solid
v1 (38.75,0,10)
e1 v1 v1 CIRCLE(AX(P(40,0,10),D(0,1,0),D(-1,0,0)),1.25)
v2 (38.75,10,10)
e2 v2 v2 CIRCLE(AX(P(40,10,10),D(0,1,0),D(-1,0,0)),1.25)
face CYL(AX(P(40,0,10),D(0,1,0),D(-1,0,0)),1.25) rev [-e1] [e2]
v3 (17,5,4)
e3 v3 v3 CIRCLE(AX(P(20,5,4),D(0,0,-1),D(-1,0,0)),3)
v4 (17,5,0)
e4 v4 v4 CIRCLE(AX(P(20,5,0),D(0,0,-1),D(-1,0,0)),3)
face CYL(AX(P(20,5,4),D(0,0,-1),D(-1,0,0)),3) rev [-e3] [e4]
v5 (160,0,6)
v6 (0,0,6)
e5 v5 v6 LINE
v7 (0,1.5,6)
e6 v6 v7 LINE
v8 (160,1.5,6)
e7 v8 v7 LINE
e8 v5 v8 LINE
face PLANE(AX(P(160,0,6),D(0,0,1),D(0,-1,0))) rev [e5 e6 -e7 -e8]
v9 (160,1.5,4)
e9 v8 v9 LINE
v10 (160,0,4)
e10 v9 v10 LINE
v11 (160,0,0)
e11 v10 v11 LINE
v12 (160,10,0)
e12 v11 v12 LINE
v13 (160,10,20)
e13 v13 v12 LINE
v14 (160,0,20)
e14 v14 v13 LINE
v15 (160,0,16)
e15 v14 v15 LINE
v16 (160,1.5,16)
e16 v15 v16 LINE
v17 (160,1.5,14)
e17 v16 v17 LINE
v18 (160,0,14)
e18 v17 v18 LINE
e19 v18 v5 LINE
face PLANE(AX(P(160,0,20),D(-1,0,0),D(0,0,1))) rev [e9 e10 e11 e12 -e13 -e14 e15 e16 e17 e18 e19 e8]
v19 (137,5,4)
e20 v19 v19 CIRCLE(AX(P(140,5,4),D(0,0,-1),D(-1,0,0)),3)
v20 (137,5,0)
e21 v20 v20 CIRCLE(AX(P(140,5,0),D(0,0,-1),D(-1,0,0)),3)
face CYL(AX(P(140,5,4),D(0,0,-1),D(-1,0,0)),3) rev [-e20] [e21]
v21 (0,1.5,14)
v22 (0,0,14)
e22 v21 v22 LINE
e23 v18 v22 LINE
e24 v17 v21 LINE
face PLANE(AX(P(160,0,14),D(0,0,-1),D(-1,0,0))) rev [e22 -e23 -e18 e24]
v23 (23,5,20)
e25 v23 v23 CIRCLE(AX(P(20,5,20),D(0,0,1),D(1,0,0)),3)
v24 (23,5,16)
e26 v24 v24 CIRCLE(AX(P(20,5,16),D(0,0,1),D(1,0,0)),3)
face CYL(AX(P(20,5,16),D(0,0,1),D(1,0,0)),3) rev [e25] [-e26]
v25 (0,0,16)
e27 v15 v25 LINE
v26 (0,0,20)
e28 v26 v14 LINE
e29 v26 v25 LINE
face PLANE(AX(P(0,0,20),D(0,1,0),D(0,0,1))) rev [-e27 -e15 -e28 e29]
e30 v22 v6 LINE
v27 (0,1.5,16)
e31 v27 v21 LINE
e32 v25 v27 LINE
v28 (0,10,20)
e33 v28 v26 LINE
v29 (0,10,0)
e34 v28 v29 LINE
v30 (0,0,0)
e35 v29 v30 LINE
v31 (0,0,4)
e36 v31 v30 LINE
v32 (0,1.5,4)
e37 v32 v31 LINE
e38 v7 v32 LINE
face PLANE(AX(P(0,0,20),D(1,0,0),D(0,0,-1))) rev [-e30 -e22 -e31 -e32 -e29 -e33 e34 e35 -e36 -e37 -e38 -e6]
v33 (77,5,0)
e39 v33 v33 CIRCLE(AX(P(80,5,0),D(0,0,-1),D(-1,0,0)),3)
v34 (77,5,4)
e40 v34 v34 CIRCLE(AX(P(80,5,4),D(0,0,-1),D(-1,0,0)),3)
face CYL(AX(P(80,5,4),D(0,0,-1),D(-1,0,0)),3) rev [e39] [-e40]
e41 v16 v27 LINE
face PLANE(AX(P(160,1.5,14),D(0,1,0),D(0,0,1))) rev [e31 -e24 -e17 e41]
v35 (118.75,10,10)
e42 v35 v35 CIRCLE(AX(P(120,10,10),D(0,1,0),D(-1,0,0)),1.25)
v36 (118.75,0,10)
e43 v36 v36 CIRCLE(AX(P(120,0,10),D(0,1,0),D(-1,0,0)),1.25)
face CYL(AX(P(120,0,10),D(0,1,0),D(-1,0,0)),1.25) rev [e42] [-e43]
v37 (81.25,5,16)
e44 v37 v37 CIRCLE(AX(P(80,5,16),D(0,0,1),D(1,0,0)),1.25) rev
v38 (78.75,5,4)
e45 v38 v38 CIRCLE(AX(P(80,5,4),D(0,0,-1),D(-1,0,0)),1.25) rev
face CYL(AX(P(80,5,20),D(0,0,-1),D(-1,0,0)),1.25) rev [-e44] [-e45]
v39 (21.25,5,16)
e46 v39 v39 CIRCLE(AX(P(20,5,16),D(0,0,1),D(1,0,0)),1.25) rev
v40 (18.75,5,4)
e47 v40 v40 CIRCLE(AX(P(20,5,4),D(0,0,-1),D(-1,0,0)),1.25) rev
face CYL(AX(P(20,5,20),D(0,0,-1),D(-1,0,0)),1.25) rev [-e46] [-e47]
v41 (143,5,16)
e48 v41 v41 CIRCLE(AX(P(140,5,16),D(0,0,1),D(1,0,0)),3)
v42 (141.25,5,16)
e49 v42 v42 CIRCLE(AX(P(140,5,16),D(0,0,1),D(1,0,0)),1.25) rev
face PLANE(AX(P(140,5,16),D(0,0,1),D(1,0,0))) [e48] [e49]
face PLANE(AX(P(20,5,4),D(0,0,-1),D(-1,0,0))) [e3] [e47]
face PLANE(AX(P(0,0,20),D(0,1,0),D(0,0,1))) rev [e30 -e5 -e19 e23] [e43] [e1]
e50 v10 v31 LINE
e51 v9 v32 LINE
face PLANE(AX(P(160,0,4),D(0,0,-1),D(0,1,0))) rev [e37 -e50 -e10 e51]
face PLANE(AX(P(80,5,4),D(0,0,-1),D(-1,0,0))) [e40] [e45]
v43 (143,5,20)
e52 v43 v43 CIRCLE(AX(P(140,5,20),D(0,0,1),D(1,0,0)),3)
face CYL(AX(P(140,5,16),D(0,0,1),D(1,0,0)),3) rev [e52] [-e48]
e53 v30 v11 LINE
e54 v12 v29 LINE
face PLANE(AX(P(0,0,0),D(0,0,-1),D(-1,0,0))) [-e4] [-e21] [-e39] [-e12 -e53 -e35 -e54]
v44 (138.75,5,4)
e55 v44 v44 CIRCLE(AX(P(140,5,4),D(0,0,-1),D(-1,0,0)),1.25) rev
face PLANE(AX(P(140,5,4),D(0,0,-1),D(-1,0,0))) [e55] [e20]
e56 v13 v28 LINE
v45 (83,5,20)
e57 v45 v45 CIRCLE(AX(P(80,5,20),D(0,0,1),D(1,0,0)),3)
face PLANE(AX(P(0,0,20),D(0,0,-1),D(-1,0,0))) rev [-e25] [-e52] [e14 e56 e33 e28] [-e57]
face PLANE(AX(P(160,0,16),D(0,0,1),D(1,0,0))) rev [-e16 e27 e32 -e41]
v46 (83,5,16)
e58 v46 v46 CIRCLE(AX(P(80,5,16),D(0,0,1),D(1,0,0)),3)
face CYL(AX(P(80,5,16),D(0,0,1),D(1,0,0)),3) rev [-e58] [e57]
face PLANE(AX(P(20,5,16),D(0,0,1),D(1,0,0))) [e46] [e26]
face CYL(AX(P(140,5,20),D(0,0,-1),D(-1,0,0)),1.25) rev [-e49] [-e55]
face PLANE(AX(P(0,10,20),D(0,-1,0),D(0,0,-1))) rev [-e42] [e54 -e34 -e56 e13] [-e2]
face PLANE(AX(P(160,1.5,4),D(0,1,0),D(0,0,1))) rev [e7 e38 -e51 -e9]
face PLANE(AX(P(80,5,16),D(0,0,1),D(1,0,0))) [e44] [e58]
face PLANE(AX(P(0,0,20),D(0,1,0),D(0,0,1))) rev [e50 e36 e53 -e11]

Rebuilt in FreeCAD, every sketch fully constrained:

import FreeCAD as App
import Part
import Sketcher
from FreeCAD import Vector

doc = App.newDocument("Part")
params = doc.addObject("Spreadsheet::Sheet", "Params")
for row, (alias, value) in enumerate([
    ("sketch1_width", "160 mm"),
    ("sketch1_height", "10 mm"),
    ("pad1_length", "20 mm"),
    ("sketch2_height", "2 mm"),
    ("sketch2_width", "1.5 mm"),
    ("sketch3_diameter", "2.5 mm"),
    ("sketch4_diameter", "2.5 mm"),
    ("sketch5_diameter", "6 mm"),
    ("pocket4_length", "4 mm"),
    ("sketch6_diameter", "6 mm"),
    ("pocket5_length", "4 mm"),
], start=1):
    params.set(f"A{row}", alias)
    params.set(f"B{row}", "=" + value)
    params.setAlias(f"B{row}", alias)

body = doc.addObject("PartDesign::Body", "Body")

# Sketch on XY plane
sketch1 = body.newObject("Sketcher::SketchObject", "Sketch")
sketch1.AttachmentSupport = (doc.getObject("XY_Plane"), [""])
sketch1.MapMode = "FlatFace"
sketch1.addGeometry([
    Part.LineSegment(Vector(0, 10, 0), Vector(0, 0, 0)),
    Part.LineSegment(Vector(0, 0, 0), Vector(160, 0, 0)),
    Part.LineSegment(Vector(160, 0, 0), Vector(160, 10, 0)),
    Part.LineSegment(Vector(160, 10, 0), Vector(0, 10, 0)),
], False)
sketch1.addConstraint([
    Sketcher.Constraint("Coincident", 0, 2, 1, 1),
    Sketcher.Constraint("Coincident", 1, 2, 2, 1),
    Sketcher.Constraint("Coincident", 2, 2, 3, 1),
    Sketcher.Constraint("Coincident", 3, 2, 0, 1),
    Sketcher.Constraint("Vertical", 0),
    Sketcher.Constraint("Horizontal", 1),
    Sketcher.Constraint("Vertical", 2),
    Sketcher.Constraint("Horizontal", 3),
    Sketcher.Constraint("Coincident", 0, 2, -1, 1),
    Sketcher.Constraint("DistanceX", 1, 1, 1, 2, 160.0),
    Sketcher.Constraint("DistanceY", 0, 2, 0, 1, 10.0),
])
sketch1.setExpression("Constraints[9]", "Params.sketch1_width")
sketch1.setExpression("Constraints[10]", "Params.sketch1_height")
pad1 = body.newObject("PartDesign::Pad", "Pad")
pad1.Profile = sketch1
pad1.setExpression("Length", "Params.pad1_length")

# Sketch on YZ plane
sketch2 = body.newObject("Sketcher::SketchObject", "Sketch001")
sketch2.AttachmentSupport = (doc.getObject("YZ_Plane"), [""])
sketch2.MapMode = "FlatFace"
sketch2.addGeometry([
    Part.LineSegment(Vector(1.5, 4, 0), Vector(0, 4, 0)),  # 0
    Part.LineSegment(Vector(0, 4, 0), Vector(0, 6, 0)),  # 1
    Part.LineSegment(Vector(0, 6, 0), Vector(1.5, 6, 0)),  # 2
    Part.LineSegment(Vector(1.5, 6, 0), Vector(1.5, 4, 0)),  # 3
    Part.LineSegment(Vector(1.5, 14, 0), Vector(0, 14, 0)),  # 4
    Part.LineSegment(Vector(0, 14, 0), Vector(0, 16, 0)),  # 5
    Part.LineSegment(Vector(0, 16, 0), Vector(1.5, 16, 0)),  # 6
    Part.LineSegment(Vector(1.5, 16, 0), Vector(1.5, 14, 0)),  # 7
], False)
sketch2.addConstraint([
    Sketcher.Constraint("Coincident", 0, 2, 1, 1),
    Sketcher.Constraint("Coincident", 1, 2, 2, 1),
    Sketcher.Constraint("Coincident", 2, 2, 3, 1),
    Sketcher.Constraint("Coincident", 3, 2, 0, 1),
    Sketcher.Constraint("Coincident", 4, 2, 5, 1),
    Sketcher.Constraint("Coincident", 5, 2, 6, 1),
    Sketcher.Constraint("Coincident", 6, 2, 7, 1),
    Sketcher.Constraint("Coincident", 7, 2, 4, 1),
    Sketcher.Constraint("Horizontal", 0),
    Sketcher.Constraint("Vertical", 1),
    Sketcher.Constraint("Horizontal", 2),
    Sketcher.Constraint("Vertical", 3),
    Sketcher.Constraint("Horizontal", 4),
    Sketcher.Constraint("Vertical", 5),
    Sketcher.Constraint("Horizontal", 6),
    Sketcher.Constraint("Vertical", 7),
    Sketcher.Constraint("PointOnObject", 0, 2, -2),
    Sketcher.Constraint("PointOnObject", 4, 2, -2),
    Sketcher.Constraint("Vertical", 3, 2, 6, 2),
    Sketcher.Constraint("Equal", 3, 5),
    Sketcher.Constraint("DistanceY", 1, 1, 1, 2, 2.0),
    Sketcher.Constraint("DistanceX", 0, 2, 0, 1, 1.5),
    Sketcher.Constraint("DistanceY", -1, 1, 0, 2, 4.0),
    Sketcher.Constraint("DistanceY", -1, 1, 4, 2, 14.0),
])
sketch2.setExpression("Constraints[20]", "Params.sketch2_height")
sketch2.setExpression("Constraints[21]", "Params.sketch2_width")
pocket1 = body.newObject("PartDesign::Pocket", "Pocket")
pocket1.Profile = sketch2
pocket1.Type = "ThroughAll"
pocket1.Reversed = True

# Sketch on XZ plane
sketch3 = body.newObject("Sketcher::SketchObject", "Sketch002")
sketch3.AttachmentSupport = (doc.getObject("XZ_Plane"), [""])
sketch3.MapMode = "FlatFace"
sketch3.AttachmentOffset = App.Placement(Vector(0, 0, -10), App.Rotation())
sketch3.addGeometry([
    Part.Circle(Vector(40, 10, 0), Vector(0, 0, 1), 1.25),
    Part.Circle(Vector(120, 10, 0), Vector(0, 0, 1), 1.25),
], False)
sketch3.addConstraint([
    Sketcher.Constraint("Equal", 0, 1),
    Sketcher.Constraint("Horizontal", 0, 3, 1, 3),
    Sketcher.Constraint("Diameter", 0, 2.5),
    Sketcher.Constraint("DistanceX", -1, 1, 0, 3, 40.0),
    Sketcher.Constraint("DistanceY", -1, 1, 0, 3, 10.0),
    Sketcher.Constraint("DistanceX", -1, 1, 1, 3, 120.0),
])
sketch3.setExpression("Constraints[2]", "Params.sketch3_diameter")
pocket2 = body.newObject("PartDesign::Pocket", "Pocket001")
pocket2.Profile = sketch3
pocket2.Type = "ThroughAll"
pocket2.Reversed = True

# Sketch on XY plane
sketch4 = body.newObject("Sketcher::SketchObject", "Sketch003")
sketch4.AttachmentSupport = (doc.getObject("XY_Plane"), [""])
sketch4.MapMode = "FlatFace"
sketch4.addGeometry([
    Part.Circle(Vector(140, 5, 0), Vector(0, 0, 1), 1.25),
    Part.Circle(Vector(80, 5, 0), Vector(0, 0, 1), 1.25),
    Part.Circle(Vector(20, 5, 0), Vector(0, 0, 1), 1.25),
], False)
sketch4.addConstraint([
    Sketcher.Constraint("Equal", 0, 1),
    Sketcher.Constraint("Equal", 1, 2),
    Sketcher.Constraint("Horizontal", 0, 3, 1, 3),
    Sketcher.Constraint("Horizontal", 1, 3, 2, 3),
    Sketcher.Constraint("Diameter", 0, 2.5),
    Sketcher.Constraint("DistanceX", -1, 1, 0, 3, 140.0),
    Sketcher.Constraint("DistanceY", -1, 1, 0, 3, 5.0),
    Sketcher.Constraint("DistanceX", -1, 1, 1, 3, 80.0),
    Sketcher.Constraint("DistanceX", -1, 1, 2, 3, 20.0),
])
sketch4.setExpression("Constraints[4]", "Params.sketch4_diameter")
pocket3 = body.newObject("PartDesign::Pocket", "Pocket002")
pocket3.Profile = sketch4
pocket3.Type = "ThroughAll"
pocket3.Reversed = True

# Sketch on XY plane
sketch5 = body.newObject("Sketcher::SketchObject", "Sketch004")
sketch5.AttachmentSupport = (doc.getObject("XY_Plane"), [""])
sketch5.MapMode = "FlatFace"
sketch5.addGeometry([
    Part.Circle(Vector(140, 5, 0), Vector(0, 0, 1), 3),
    Part.Circle(Vector(80, 5, 0), Vector(0, 0, 1), 3),
    Part.Circle(Vector(20, 5, 0), Vector(0, 0, 1), 3),
], False)
sketch5.addConstraint([
    Sketcher.Constraint("Equal", 0, 1),
    Sketcher.Constraint("Equal", 1, 2),
    Sketcher.Constraint("Horizontal", 0, 3, 1, 3),
    Sketcher.Constraint("Horizontal", 1, 3, 2, 3),
    Sketcher.Constraint("Diameter", 0, 6.0),
    Sketcher.Constraint("DistanceX", -1, 1, 0, 3, 140.0),
    Sketcher.Constraint("DistanceY", -1, 1, 0, 3, 5.0),
    Sketcher.Constraint("DistanceX", -1, 1, 1, 3, 80.0),
    Sketcher.Constraint("DistanceX", -1, 1, 2, 3, 20.0),
])
sketch5.setExpression("Constraints[4]", "Params.sketch5_diameter")
pocket4 = body.newObject("PartDesign::Pocket", "Pocket003")
pocket4.Profile = sketch5
pocket4.setExpression("Length", "Params.pocket4_length")
pocket4.Reversed = True

# Sketch on XY plane
sketch6 = body.newObject("Sketcher::SketchObject", "Sketch005")
sketch6.AttachmentSupport = (doc.getObject("XY_Plane"), [""])
sketch6.MapMode = "FlatFace"
sketch6.AttachmentOffset = App.Placement(Vector(0, 0, 16), App.Rotation())
sketch6.addGeometry([
    Part.Circle(Vector(20, 5, 0), Vector(0, 0, 1), 3),
    Part.Circle(Vector(80, 5, 0), Vector(0, 0, 1), 3),
    Part.Circle(Vector(140, 5, 0), Vector(0, 0, 1), 3),
], False)
sketch6.addConstraint([
    Sketcher.Constraint("Equal", 0, 1),
    Sketcher.Constraint("Equal", 1, 2),
    Sketcher.Constraint("Horizontal", 0, 3, 1, 3),
    Sketcher.Constraint("Horizontal", 1, 3, 2, 3),
    Sketcher.Constraint("Diameter", 0, 6.0),
    Sketcher.Constraint("DistanceX", -1, 1, 0, 3, 20.0),
    Sketcher.Constraint("DistanceY", -1, 1, 0, 3, 5.0),
    Sketcher.Constraint("DistanceX", -1, 1, 1, 3, 80.0),
    Sketcher.Constraint("DistanceX", -1, 1, 2, 3, 140.0),
])
sketch6.setExpression("Constraints[4]", "Params.sketch6_diameter")
pocket5 = body.newObject("PartDesign::Pocket", "Pocket004")
pocket5.Profile = sketch6
pocket5.setExpression("Length", "Params.pocket5_length")
pocket5.Reversed = True

doc.recompute()
